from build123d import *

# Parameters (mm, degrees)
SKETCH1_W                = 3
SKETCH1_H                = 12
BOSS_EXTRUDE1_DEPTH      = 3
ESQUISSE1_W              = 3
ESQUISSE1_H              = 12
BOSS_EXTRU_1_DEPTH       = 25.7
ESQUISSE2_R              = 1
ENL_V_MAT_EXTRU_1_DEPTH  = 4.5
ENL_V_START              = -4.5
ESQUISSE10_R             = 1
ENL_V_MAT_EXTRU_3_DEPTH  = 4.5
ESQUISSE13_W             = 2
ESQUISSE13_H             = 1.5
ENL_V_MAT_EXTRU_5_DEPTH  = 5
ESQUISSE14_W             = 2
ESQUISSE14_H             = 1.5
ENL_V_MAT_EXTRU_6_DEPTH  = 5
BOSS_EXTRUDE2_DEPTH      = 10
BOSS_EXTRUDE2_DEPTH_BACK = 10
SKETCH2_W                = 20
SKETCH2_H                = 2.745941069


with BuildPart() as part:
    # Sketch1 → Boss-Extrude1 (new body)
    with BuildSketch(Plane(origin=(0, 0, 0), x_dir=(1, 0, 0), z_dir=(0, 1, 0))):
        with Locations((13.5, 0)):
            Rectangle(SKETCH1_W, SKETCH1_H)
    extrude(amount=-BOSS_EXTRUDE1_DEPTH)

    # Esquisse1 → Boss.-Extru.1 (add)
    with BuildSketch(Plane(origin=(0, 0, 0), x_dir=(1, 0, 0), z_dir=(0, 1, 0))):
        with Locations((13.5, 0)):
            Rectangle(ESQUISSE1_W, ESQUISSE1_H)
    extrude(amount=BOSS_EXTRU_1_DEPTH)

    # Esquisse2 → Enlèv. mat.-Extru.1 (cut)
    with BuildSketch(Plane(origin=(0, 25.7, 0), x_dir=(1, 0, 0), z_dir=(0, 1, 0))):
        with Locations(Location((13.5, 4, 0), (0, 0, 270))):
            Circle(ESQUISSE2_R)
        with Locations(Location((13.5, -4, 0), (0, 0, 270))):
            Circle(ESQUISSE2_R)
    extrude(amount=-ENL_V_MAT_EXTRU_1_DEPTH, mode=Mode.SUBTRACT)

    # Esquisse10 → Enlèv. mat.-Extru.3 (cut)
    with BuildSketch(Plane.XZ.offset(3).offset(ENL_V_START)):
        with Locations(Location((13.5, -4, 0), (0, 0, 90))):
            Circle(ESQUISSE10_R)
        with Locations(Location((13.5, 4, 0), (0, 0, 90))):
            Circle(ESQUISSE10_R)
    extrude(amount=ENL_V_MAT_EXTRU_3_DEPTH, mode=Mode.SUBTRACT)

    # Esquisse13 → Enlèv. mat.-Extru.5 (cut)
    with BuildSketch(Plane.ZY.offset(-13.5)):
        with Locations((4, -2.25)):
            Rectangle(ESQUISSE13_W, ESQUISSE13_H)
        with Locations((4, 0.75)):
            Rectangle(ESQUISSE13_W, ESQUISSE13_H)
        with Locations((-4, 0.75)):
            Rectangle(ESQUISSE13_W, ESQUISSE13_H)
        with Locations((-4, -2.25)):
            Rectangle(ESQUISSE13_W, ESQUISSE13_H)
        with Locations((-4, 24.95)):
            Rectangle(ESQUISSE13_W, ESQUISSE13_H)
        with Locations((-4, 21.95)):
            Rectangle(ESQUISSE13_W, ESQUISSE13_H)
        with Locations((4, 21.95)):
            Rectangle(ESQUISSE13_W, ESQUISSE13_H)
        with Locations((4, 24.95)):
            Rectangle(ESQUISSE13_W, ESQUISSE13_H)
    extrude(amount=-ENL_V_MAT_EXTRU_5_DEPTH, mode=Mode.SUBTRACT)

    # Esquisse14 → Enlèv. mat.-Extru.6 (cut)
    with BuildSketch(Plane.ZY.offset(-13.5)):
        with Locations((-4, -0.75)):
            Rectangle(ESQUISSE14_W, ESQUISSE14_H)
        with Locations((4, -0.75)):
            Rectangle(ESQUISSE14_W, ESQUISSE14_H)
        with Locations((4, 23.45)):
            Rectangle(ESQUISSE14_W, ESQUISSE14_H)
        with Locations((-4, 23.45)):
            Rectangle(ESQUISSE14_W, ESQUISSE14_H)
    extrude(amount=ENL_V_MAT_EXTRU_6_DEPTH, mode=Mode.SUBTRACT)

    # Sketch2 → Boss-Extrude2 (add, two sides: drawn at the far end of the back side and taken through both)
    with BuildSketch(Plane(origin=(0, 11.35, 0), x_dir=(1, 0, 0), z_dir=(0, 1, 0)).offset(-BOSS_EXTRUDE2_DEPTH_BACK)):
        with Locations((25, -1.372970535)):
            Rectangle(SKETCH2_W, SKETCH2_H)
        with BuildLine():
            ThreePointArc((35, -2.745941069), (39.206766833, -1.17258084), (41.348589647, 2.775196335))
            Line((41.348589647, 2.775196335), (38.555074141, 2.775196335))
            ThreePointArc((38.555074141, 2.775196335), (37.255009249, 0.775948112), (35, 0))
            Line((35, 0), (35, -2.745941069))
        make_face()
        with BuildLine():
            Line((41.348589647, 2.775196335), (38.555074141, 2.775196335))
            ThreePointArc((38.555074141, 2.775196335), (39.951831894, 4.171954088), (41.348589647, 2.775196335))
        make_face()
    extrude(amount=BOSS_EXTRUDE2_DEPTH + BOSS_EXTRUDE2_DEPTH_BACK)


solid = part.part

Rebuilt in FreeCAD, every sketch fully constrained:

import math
import FreeCAD as App
import Part
import Sketcher

V = App.Vector
Q = App.Units.Quantity

doc = App.newDocument("Part")
body = doc.addObject("PartDesign::Body", "Body")

sketch1 = body.newObject("Sketcher::SketchObject", "Sketch")
sketch1.AttachmentSupport = (doc.getObject("XZ_Plane"), [""])
sketch1.MapMode = "FlatFace"
sketch1.addGeometry(Part.LineSegment(V(12, -6, 0), V(12, 6, 0)), False)
sketch1.addGeometry(Part.LineSegment(V(12, 6, 0), V(15, 6, 0)), False)
sketch1.addGeometry(Part.LineSegment(V(15, 6, 0), V(15, -6, 0)), False)
sketch1.addGeometry(Part.LineSegment(V(15, -6, 0), V(12, -6, 0)), False)
sketch1.addConstraint(Sketcher.Constraint("Coincident", 0, 2, 1, 1))
sketch1.addConstraint(Sketcher.Constraint("Coincident", 1, 2, 2, 1))
sketch1.addConstraint(Sketcher.Constraint("Coincident", 2, 2, 3, 1))
sketch1.addConstraint(Sketcher.Constraint("Coincident", 3, 2, 0, 1))
sketch1.addConstraint(Sketcher.Constraint("Vertical", 0))
sketch1.addConstraint(Sketcher.Constraint("Horizontal", 1))
sketch1.addConstraint(Sketcher.Constraint("Vertical", 2))
sketch1.addConstraint(Sketcher.Constraint("Horizontal", 3))
sketch1.addConstraint(Sketcher.Constraint("DistanceX", 1, 1, 1, 2, Q("3 mm")))
sketch1.addConstraint(Sketcher.Constraint("DistanceY", 0, 1, 0, 2, Q("12 mm")))
sketch1.addConstraint(Sketcher.Constraint("DistanceX", -1, 1, 0, 2, Q("12 mm")))
sketch1.addConstraint(Sketcher.Constraint("DistanceY", -1, 1, 0, 2, Q("6 mm")))
pad1 = body.newObject("PartDesign::Pad", "Pad")
pad1.Profile = sketch1
pad1.Length = 3

sketch2 = body.newObject("Sketcher::SketchObject", "Sketch001")
sketch2.AttachmentSupport = (doc.getObject("XZ_Plane"), [""])
sketch2.MapMode = "FlatFace"
sketch2.addGeometry(Part.LineSegment(V(12, -6, 0), V(12, 6, 0)), False)
sketch2.addGeometry(Part.LineSegment(V(12, 6, 0), V(15, 6, 0)), False)
sketch2.addGeometry(Part.LineSegment(V(15, 6, 0), V(15, -6, 0)), False)
sketch2.addGeometry(Part.LineSegment(V(15, -6, 0), V(12, -6, 0)), False)
sketch2.addConstraint(Sketcher.Constraint("Coincident", 0, 2, 1, 1))
sketch2.addConstraint(Sketcher.Constraint("Coincident", 1, 2, 2, 1))
sketch2.addConstraint(Sketcher.Constraint("Coincident", 2, 2, 3, 1))
sketch2.addConstraint(Sketcher.Constraint("Coincident", 3, 2, 0, 1))
sketch2.addConstraint(Sketcher.Constraint("Vertical", 0))
sketch2.addConstraint(Sketcher.Constraint("Horizontal", 1))
sketch2.addConstraint(Sketcher.Constraint("Vertical", 2))
sketch2.addConstraint(Sketcher.Constraint("Horizontal", 3))
sketch2.addConstraint(Sketcher.Constraint("DistanceX", 1, 1, 1, 2, Q("3 mm")))
sketch2.addConstraint(Sketcher.Constraint("DistanceY", 0, 1, 0, 2, Q("12 mm")))
sketch2.addConstraint(Sketcher.Constraint("DistanceX", -1, 1, 0, 2, Q("12 mm")))
sketch2.addConstraint(Sketcher.Constraint("DistanceY", -1, 1, 0, 2, Q("6 mm")))
pad2 = body.newObject("PartDesign::Pad", "Pad001")
pad2.Profile = sketch2
pad2.Length = 25.7
pad2.Reversed = True

sketch3 = body.newObject("Sketcher::SketchObject", "Sketch002")
sketch3.AttachmentSupport = (doc.getObject("XZ_Plane"), [""])
sketch3.MapMode = "FlatFace"
sketch3.AttachmentOffset = App.Placement(V(0, 0, -25.7), App.Rotation())
sketch3.addGeometry(Part.Circle(V(13.5, -4, 0), V(0, 0, 1), 1), False)
sketch3.addGeometry(Part.Circle(V(13.5, 4, 0), V(0, 0, 1), 1), False)
sketch3.addConstraint(Sketcher.Constraint("Equal", 0, 1))
sketch3.addConstraint(Sketcher.Constraint("Symmetric", 0, 3, 1, 3, -1))
sketch3.addConstraint(Sketcher.Constraint("Diameter", 0, Q("2 mm")))
sketch3.addConstraint(Sketcher.Constraint("DistanceY", 0, 3, -1, 1, Q("4 mm")))
sketch3.addConstraint(Sketcher.Constraint("DistanceX", -1, 1, 0, 3, Q("13.5 mm")))
pocket1 = body.newObject("PartDesign::Pocket", "Pocket")
pocket1.Profile = sketch3
pocket1.Length = 4.5
pocket1.Reversed = True

sketch4 = body.newObject("Sketcher::SketchObject", "Sketch003")
sketch4.AttachmentSupport = (doc.getObject("XZ_Plane"), [""])
sketch4.MapMode = "FlatFace"
sketch4.AttachmentOffset = App.Placement(V(0, 0, -1.5), App.Rotation())
sketch4.addGeometry(Part.Circle(V(13.5, -4, 0), V(0, 0, 1), 1), False)
sketch4.addGeometry(Part.Circle(V(13.5, 4, 0), V(0, 0, 1), 1), False)
sketch4.addConstraint(Sketcher.Constraint("Equal", 0, 1))
sketch4.addConstraint(Sketcher.Constraint("Symmetric", 0, 3, 1, 3, -1))
sketch4.addConstraint(Sketcher.Constraint("Diameter", 0, Q("2 mm")))
sketch4.addConstraint(Sketcher.Constraint("DistanceY", 0, 3, -1, 1, Q("4 mm")))
sketch4.addConstraint(Sketcher.Constraint("DistanceX", -1, 1, 0, 3, Q("13.5 mm")))
pocket2 = body.newObject("PartDesign::Pocket", "Pocket001")
pocket2.Profile = sketch4
pocket2.Length = 4.5
pocket2.Reversed = True

sketch5 = body.newObject("Sketcher::SketchObject", "Sketch004")
sketch5.AttachmentSupport = (doc.getObject("YZ_Plane"), [""])
sketch5.MapMode = "FlatFace"
sketch5.AttachmentOffset = App.Placement(V(0, 0, 13.5), App.Rotation())
sketch5.addGeometry(Part.LineSegment(V(-1.5, 3, 0), V(-3, 3, 0)), False)
sketch5.addGeometry(Part.LineSegment(V(-3, 3, 0), V(-3, 5, 0)), False)
sketch5.addGeometry(Part.LineSegment(V(-3, 5, 0), V(-1.5, 5, 0)), False)
sketch5.addGeometry(Part.LineSegment(V(-1.5, 5, 0), V(-1.5, 3, 0)), False)
sketch5.addGeometry(Part.LineSegment(V(1.5, 3, 0), V(0, 3, 0)), False)
sketch5.addGeometry(Part.LineSegment(V(0, 3, 0), V(0, 5, 0)), False)
sketch5.addGeometry(Part.LineSegment(V(0, 5, 0), V(1.5, 5, 0)), False)
sketch5.addGeometry(Part.LineSegment(V(1.5, 5, 0), V(1.5, 3, 0)), False)
sketch5.addGeometry(Part.LineSegment(V(1.5, -5, 0), V(0, -5, 0)), False)
sketch5.addGeometry(Part.LineSegment(V(0, -5, 0), V(0, -3, 0)), False)
sketch5.addGeometry(Part.LineSegment(V(0, -3, 0), V(1.5, -3, 0)), False)
sketch5.addGeometry(Part.LineSegment(V(1.5, -3, 0), V(1.5, -5, 0)), False)
sketch5.addGeometry(Part.LineSegment(V(-1.5, -5, 0), V(-3, -5, 0)), False)
sketch5.addGeometry(Part.LineSegment(V(-3, -5, 0), V(-3, -3, 0)), False)
sketch5.addGeometry(Part.LineSegment(V(-3, -3, 0), V(-1.5, -3, 0)), False)
sketch5.addGeometry(Part.LineSegment(V(-1.5, -3, 0), V(-1.5, -5, 0)), False)
sketch5.addGeometry(Part.LineSegment(V(25.7, -5, 0), V(24.2, -5, 0)), False)
sketch5.addGeometry(Part.LineSegment(V(24.2, -5, 0), V(24.2, -3, 0)), False)
sketch5.addGeometry(Part.LineSegment(V(24.2, -3, 0), V(25.7, -3, 0)), False)
sketch5.addGeometry(Part.LineSegment(V(25.7, -3, 0), V(25.7, -5, 0)), False)
sketch5.addGeometry(Part.LineSegment(V(22.7, -5, 0), V(21.2, -5, 0)), False)
sketch5.addGeometry(Part.LineSegment(V(21.2, -5, 0), V(21.2, -3, 0)), False)
sketch5.addGeometry(Part.LineSegment(V(21.2, -3, 0), V(22.7, -3, 0)), False)
sketch5.addGeometry(Part.LineSegment(V(22.7, -3, 0), V(22.7, -5, 0)), False)
sketch5.addGeometry(Part.LineSegment(V(22.7, 3, 0), V(21.2, 3, 0)), False)
sketch5.addGeometry(Part.LineSegment(V(21.2, 3, 0), V(21.2, 5, 0)), False)
sketch5.addGeometry(Part.LineSegment(V(21.2, 5, 0), V(22.7, 5, 0)), False)
sketch5.addGeometry(Part.LineSegment(V(22.7, 5, 0), V(22.7, 3, 0)), False)
sketch5.addGeometry(Part.LineSegment(V(25.7, 3, 0), V(24.2, 3, 0)), False)
sketch5.addGeometry(Part.LineSegment(V(24.2, 3, 0), V(24.2, 5, 0)), False)
sketch5.addGeometry(Part.LineSegment(V(24.2, 5, 0), V(25.7, 5, 0)), False)
sketch5.addGeometry(Part.LineSegment(V(25.7, 5, 0), V(25.7, 3, 0)), False)
sketch5.addConstraint(Sketcher.Constraint("Coincident", 0, 2, 1, 1))
sketch5.addConstraint(Sketcher.Constraint("Coincident", 1, 2, 2, 1))
sketch5.addConstraint(Sketcher.Constraint("Coincident", 2, 2, 3, 1))
sketch5.addConstraint(Sketcher.Constraint("Coincident", 3, 2, 0, 1))
sketch5.addConstraint(Sketcher.Constraint("Coincident", 4, 2, 5, 1))
sketch5.addConstraint(Sketcher.Constraint("Coincident", 5, 2, 6, 1))
sketch5.addConstraint(Sketcher.Constraint("Coincident", 6, 2, 7, 1))
sketch5.addConstraint(Sketcher.Constraint("Coincident", 7, 2, 4, 1))
sketch5.addConstraint(Sketcher.Constraint("Coincident", 8, 2, 9, 1))
sketch5.addConstraint(Sketcher.Constraint("Coincident", 9, 2, 10, 1))
sketch5.addConstraint(Sketcher.Constraint("Coincident", 10, 2, 11, 1))
sketch5.addConstraint(Sketcher.Constraint("Coincident", 11, 2, 8, 1))
sketch5.addConstraint(Sketcher.Constraint("Coincident", 12, 2, 13, 1))
sketch5.addConstraint(Sketcher.Constraint("Coincident", 13, 2, 14, 1))
sketch5.addConstraint(Sketcher.Constraint("Coincident", 14, 2, 15, 1))
sketch5.addConstraint(Sketcher.Constraint("Coincident", 15, 2, 12, 1))
sketch5.addConstraint(Sketcher.Constraint("Coincident", 16, 2, 17, 1))
sketch5.addConstraint(Sketcher.Constraint("Coincident", 17, 2, 18, 1))
sketch5.addConstraint(Sketcher.Constraint("Coincident", 18, 2, 19, 1))
sketch5.addConstraint(Sketcher.Constraint("Coincident", 19, 2, 16, 1))
sketch5.addConstraint(Sketcher.Constraint("Coincident", 20, 2, 21, 1))
sketch5.addConstraint(Sketcher.Constraint("Coincident", 21, 2, 22, 1))
sketch5.addConstraint(Sketcher.Constraint("Coincident", 22, 2, 23, 1))
sketch5.addConstraint(Sketcher.Constraint("Coincident", 23, 2, 20, 1))
sketch5.addConstraint(Sketcher.Constraint("Coincident", 24, 2, 25, 1))
sketch5.addConstraint(Sketcher.Constraint("Coincident", 25, 2, 26, 1))
sketch5.addConstraint(Sketcher.Constraint("Coincident", 26, 2, 27, 1))
sketch5.addConstraint(Sketcher.Constraint("Coincident", 27, 2, 24, 1))
sketch5.addConstraint(Sketcher.Constraint("Coincident", 28, 2, 29, 1))
sketch5.addConstraint(Sketcher.Constraint("Coincident", 29, 2, 30, 1))
sketch5.addConstraint(Sketcher.Constraint("Coincident", 30, 2, 31, 1))
sketch5.addConstraint(Sketcher.Constraint("Coincident", 31, 2, 28, 1))
sketch5.addConstraint(Sketcher.Constraint("Horizontal", 0))
sketch5.addConstraint(Sketcher.Constraint("Vertical", 1))
sketch5.addConstraint(Sketcher.Constraint("Horizontal", 2))
sketch5.addConstraint(Sketcher.Constraint("Vertical", 3))
sketch5.addConstraint(Sketcher.Constraint("Horizontal", 4))
sketch5.addConstraint(Sketcher.Constraint("Vertical", 5))
sketch5.addConstraint(Sketcher.Constraint("Horizontal", 6))
sketch5.addConstraint(Sketcher.Constraint("Vertical", 7))
sketch5.addConstraint(Sketcher.Constraint("Horizontal", 8))
sketch5.addConstraint(Sketcher.Constraint("Vertical", 9))
sketch5.addConstraint(Sketcher.Constraint("Horizontal", 10))
sketch5.addConstraint(Sketcher.Constraint("Vertical", 11))
sketch5.addConstraint(Sketcher.Constraint("Horizontal", 12))
sketch5.addConstraint(Sketcher.Constraint("Vertical", 13))
sketch5.addConstraint(Sketcher.Constraint("Horizontal", 14))
sketch5.addConstraint(Sketcher.Constraint("Vertical", 15))
sketch5.addConstraint(Sketcher.Constraint("Horizontal", 16))
sketch5.addConstraint(Sketcher.Constraint("Vertical", 17))
sketch5.addConstraint(Sketcher.Constraint("Horizontal", 18))
sketch5.addConstraint(Sketcher.Constraint("Vertical", 19))
sketch5.addConstraint(Sketcher.Constraint("Horizontal", 20))
sketch5.addConstraint(Sketcher.Constraint("Vertical", 21))
sketch5.addConstraint(Sketcher.Constraint("Horizontal", 22))
sketch5.addConstraint(Sketcher.Constraint("Vertical", 23))
sketch5.addConstraint(Sketcher.Constraint("Horizontal", 24))
sketch5.addConstraint(Sketcher.Constraint("Vertical", 25))
sketch5.addConstraint(Sketcher.Constraint("Horizontal", 26))
sketch5.addConstraint(Sketcher.Constraint("Vertical", 27))
sketch5.addConstraint(Sketcher.Constraint("Horizontal", 28))
sketch5.addConstraint(Sketcher.Constraint("Vertical", 29))
sketch5.addConstraint(Sketcher.Constraint("Horizontal", 30))
sketch5.addConstraint(Sketcher.Constraint("Vertical", 31))
sketch5.addConstraint(Sketcher.Constraint("Symmetric", 5, 2, 8, 2, -1, 1))
sketch5.addConstraint(Sketcher.Constraint("Symmetric", 3, 2, 10, 2, -1, 1))
sketch5.addConstraint(Sketcher.Constraint("Symmetric", 7, 2, 14, 2, -1, 1))
sketch5.addConstraint(Sketcher.Constraint("Symmetric", 2, 2, 6, 2, -2))
sketch5.addConstraint(Sketcher.Constraint("Symmetric", 4, 2, 9, 2, -1))
sketch5.addConstraint(Sketcher.Constraint("Symmetric", 1, 2, 12, 2, -1))
sketch5.addConstraint(Sketcher.Constraint("Symmetric", 21, 2, 24, 2, -1))
sketch5.addConstraint(Sketcher.Constraint("Symmetric", 23, 2, 26, 2, -1))
sketch5.addConstraint(Sketcher.Constraint("Symmetric", 17, 2, 28, 2, -1))
sketch5.addConstraint(Sketcher.Constraint("Symmetric", 19, 2, 30, 2, -1))
sketch5.addConstraint(Sketcher.Constraint("Horizontal", 15, 2, 16, 2))
sketch5.addConstraint(Sketcher.Constraint("Horizontal", 14, 2, 17, 2))
sketch5.addConstraint(Sketcher.Constraint("Horizontal", 19, 2, 20, 2))
sketch5.addConstraint(Sketcher.Constraint("Horizontal", 18, 2, 21, 2))
sketch5.addConstraint(Sketcher.Constraint("Equal", 2, 4))
sketch5.addConstraint(Sketcher.Constraint("Equal", 14, 16))
sketch5.addConstraint(Sketcher.Constraint("Equal", 18, 20))
sketch5.addConstraint(Sketcher.Constraint("DistanceY", 1, 1, 1, 2, Q("2 mm")))
sketch5.addConstraint(Sketcher.Constraint("DistanceX", 0, 2, 0, 1, Q("1.5 mm")))
sketch5.addConstraint(Sketcher.Constraint("DistanceY", -1, 1, 0, 2, Q("3 mm")))
sketch5.addConstraint(Sketcher.Constraint("DistanceX", 20, 2, 16, 2, Q("3 mm")))
sketch5.addConstraint(Sketcher.Constraint("DistanceX", -1, 1, 16, 2, Q("24.2 mm")))
pocket3 = body.newObject("PartDesign::Pocket", "Pocket002")
pocket3.Profile = sketch5
pocket3.Length = 5
pocket3.Reversed = True

sketch6 = body.newObject("Sketcher::SketchObject", "Sketch005")
sketch6.AttachmentSupport = (doc.getObject("YZ_Plane"), [""])
sketch6.MapMode = "FlatFace"
sketch6.AttachmentOffset = App.Placement(V(0, 0, 13.5), App.Rotation())
sketch6.addGeometry(Part.LineSegment(V(0, -5, 0), V(-1.5, -5, 0)), False)
sketch6.addGeometry(Part.LineSegment(V(-1.5, -5, 0), V(-1.5, -3, 0)), False)
sketch6.addGeometry(Part.LineSegment(V(-1.5, -3, 0), V(0, -3, 0)), False)
sketch6.addGeometry(Part.LineSegment(V(0, -3, 0), V(0, -5, 0)), False)
sketch6.addGeometry(Part.LineSegment(V(0, 3, 0), V(-1.5, 3, 0)), False)
sketch6.addGeometry(Part.LineSegment(V(-1.5, 3, 0), V(-1.5, 5, 0)), False)
sketch6.addGeometry(Part.LineSegment(V(-1.5, 5, 0), V(0, 5, 0)), False)
sketch6.addGeometry(Part.LineSegment(V(0, 5, 0), V(0, 3, 0)), False)
sketch6.addGeometry(Part.LineSegment(V(24.2, 3, 0), V(22.7, 3, 0)), False)
sketch6.addGeometry(Part.LineSegment(V(22.7, 3, 0), V(22.7, 5, 0)), False)
sketch6.addGeometry(Part.LineSegment(V(22.7, 5, 0), V(24.2, 5, 0)), False)
sketch6.addGeometry(Part.LineSegment(V(24.2, 5, 0), V(24.2, 3, 0)), False)
sketch6.addGeometry(Part.LineSegment(V(24.2, -5, 0), V(22.7, -5, 0)), False)
sketch6.addGeometry(Part.LineSegment(V(22.7, -5, 0), V(22.7, -3, 0)), False)
sketch6.addGeometry(Part.LineSegment(V(22.7, -3, 0), V(24.2, -3, 0)), False)
sketch6.addGeometry(Part.LineSegment(V(24.2, -3, 0), V(24.2, -5, 0)), False)
sketch6.addConstraint(Sketcher.Constraint("Coincident", 0, 2, 1, 1))
sketch6.addConstraint(Sketcher.Constraint("Coincident", 1, 2, 2, 1))
sketch6.addConstraint(Sketcher.Constraint("Coincident", 2, 2, 3, 1))
sketch6.addConstraint(Sketcher.Constraint("Coincident", 3, 2, 0, 1))
sketch6.addConstraint(Sketcher.Constraint("Coincident", 4, 2, 5, 1))
sketch6.addConstraint(Sketcher.Constraint("Coincident", 5, 2, 6, 1))
sketch6.addConstraint(Sketcher.Constraint("Coincident", 6, 2, 7, 1))
sketch6.addConstraint(Sketcher.Constraint("Coincident", 7, 2, 4, 1))
sketch6.addConstraint(Sketcher.Constraint("Coincident", 8, 2, 9, 1))
sketch6.addConstraint(Sketcher.Constraint("Coincident", 9, 2, 10, 1))
sketch6.addConstraint(Sketcher.Constraint("Coincident", 10, 2, 11, 1))
sketch6.addConstraint(Sketcher.Constraint("Coincident", 11, 2, 8, 1))
sketch6.addConstraint(Sketcher.Constraint("Coincident", 12, 2, 13, 1))
sketch6.addConstraint(Sketcher.Constraint("Coincident", 13, 2, 14, 1))
sketch6.addConstraint(Sketcher.Constraint("Coincident", 14, 2, 15, 1))
sketch6.addConstraint(Sketcher.Constraint("Coincident", 15, 2, 12, 1))
sketch6.addConstraint(Sketcher.Constraint("Horizontal", 0))
sketch6.addConstraint(Sketcher.Constraint("Vertical", 1))
sketch6.addConstraint(Sketcher.Constraint("Horizontal", 2))
sketch6.addConstraint(Sketcher.Constraint("Vertical", 3))
sketch6.addConstraint(Sketcher.Constraint("Horizontal", 4))
sketch6.addConstraint(Sketcher.Constraint("Vertical", 5))
sketch6.addConstraint(Sketcher.Constraint("Horizontal", 6))
sketch6.addConstraint(Sketcher.Constraint("Vertical", 7))
sketch6.addConstraint(Sketcher.Constraint("Horizontal", 8))
sketch6.addConstraint(Sketcher.Constraint("Vertical", 9))
sketch6.addConstraint(Sketcher.Constraint("Horizontal", 10))
sketch6.addConstraint(Sketcher.Constraint("Vertical", 11))
sketch6.addConstraint(Sketcher.Constraint("Horizontal", 12))
sketch6.addConstraint(Sketcher.Constraint("Vertical", 13))
sketch6.addConstraint(Sketcher.Constraint("Horizontal", 14))
sketch6.addConstraint(Sketcher.Constraint("Vertical", 15))
sketch6.addConstraint(Sketcher.Constraint("Symmetric", 3, 2, 6, 2, -1, 1))
sketch6.addConstraint(Sketcher.Constraint("Symmetric", 1, 2, 4, 2, -1))
sketch6.addConstraint(Sketcher.Constraint("Symmetric", 9, 2, 12, 2, -1))
sketch6.addConstraint(Sketcher.Constraint("Symmetric", 11, 2, 14, 2, -1))
sketch6.addConstraint(Sketcher.Constraint("PointOnObject", 2, 2, -2))
sketch6.addConstraint(Sketcher.Constraint("Horizontal", 7, 2, 8, 2))
sketch6.addConstraint(Sketcher.Constraint("Horizontal", 6, 2, 9, 2))
sketch6.addConstraint(Sketcher.Constraint("Equal", 6, 8))
sketch6.addConstraint(Sketcher.Constraint("DistanceY", 1, 1, 1, 2, Q("2 mm")))
sketch6.addConstraint(Sketcher.Constraint("DistanceX", 0, 2, 0, 1, Q("1.5 mm")))
sketch6.addConstraint(Sketcher.Constraint("DistanceY", 0, 2, -1, 1, Q("5 mm")))
sketch6.addConstraint(Sketcher.Constraint("DistanceX", -1, 1, 8, 2, Q("22.7 mm")))
pocket4 = body.newObject("PartDesign::Pocket", "Pocket003")
pocket4.Profile = sketch6
pocket4.Length = 5

sketch7 = body.newObject("Sketcher::SketchObject", "Sketch006")
sketch7.AttachmentSupport = (doc.getObject("XZ_Plane"), [""])
sketch7.MapMode = "FlatFace"
sketch7.AttachmentOffset = App.Placement(V(0, 0, -11.35), App.Rotation())
sketch7.addGeometry(Part.LineSegment(V(15, 0, 0), V(15, 2.7, 0)), False)
sketch7.addGeometry(Part.LineSegment(V(15, 2.7, 0), V(35, 2.7, 0)), False)
sketch7.addGeometry(Part.ArcOfCircle(Part.Circle(V(35, -3.7, 0), V(0, 0, 1), 6.4), math.radians(8), math.radians(90)), False)
sketch7.addGeometry(Part.ArcOfCircle(Part.Circle(V(40, -2.8, 0), V(0, 0, 1), 1.4), math.radians(180), math.radians(360)), False)
sketch7.addGeometry(Part.ArcOfCircle(Part.Circle(V(35, -3.7, 0), V(0, 0, 1), 3.7), math.radians(14), math.radians(90)), False)
sketch7.addGeometry(Part.LineSegment(V(35, 0, 0), V(15, 0, 0)), False)
sketch7.addConstraint(Sketcher.Constraint("Coincident", 0, 2, 1, 1))
sketch7.addConstraint(Sketcher.Constraint("Tangent", 1, 2, 2, 2))
sketch7.addConstraint(Sketcher.Constraint("Coincident", 2, 1, 3, 2))
sketch7.addConstraint(Sketcher.Constraint("Coincident", 3, 1, 4, 1))
sketch7.addConstraint(Sketcher.Constraint("Tangent", 4, 2, 5, 1))
sketch7.addConstraint(Sketcher.Constraint("Coincident", 5, 2, 0, 1))
sketch7.addConstraint(Sketcher.Constraint("Vertical", 0))
sketch7.addConstraint(Sketcher.Constraint("Horizontal", 1))
sketch7.addConstraint(Sketcher.Constraint("Horizontal", 5))
sketch7.addConstraint(Sketcher.Constraint("Coincident", 4, 3, 2, 3))
sketch7.addConstraint(Sketcher.Constraint("PointOnObject", 4, 2, -1))
sketch7.addConstraint(Sketcher.Constraint("Horizontal", 3, 3, 2, 1))
sketch7.addConstraint(Sketcher.Constraint("Horizontal", 2, 1, 3, 1))
sketch7.addConstraint(Sketcher.Constraint("DistanceX", 1, 1, 1, 2, Q("20 mm")))
sketch7.addConstraint(Sketcher.Constraint("DistanceX", -1, 1, 2, 3, Q("35 mm")))
sketch7.addConstraint(Sketcher.Constraint("Radius", 2, Q("6.410595 mm")))
sketch7.addConstraint(Sketcher.Constraint("Radius", 3, Q("1.396758 mm")))
sketch7.addConstraint(Sketcher.Constraint("Radius", 4, Q("3.664654 mm")))
pad3 = body.newObject("PartDesign::Pad", "Pad002")
pad3.Profile = sketch7
pad3.Type = "TwoLengths"
pad3.Length = 10
pad3.Length2 = 10
pad3.Reversed = True

doc.recompute()
